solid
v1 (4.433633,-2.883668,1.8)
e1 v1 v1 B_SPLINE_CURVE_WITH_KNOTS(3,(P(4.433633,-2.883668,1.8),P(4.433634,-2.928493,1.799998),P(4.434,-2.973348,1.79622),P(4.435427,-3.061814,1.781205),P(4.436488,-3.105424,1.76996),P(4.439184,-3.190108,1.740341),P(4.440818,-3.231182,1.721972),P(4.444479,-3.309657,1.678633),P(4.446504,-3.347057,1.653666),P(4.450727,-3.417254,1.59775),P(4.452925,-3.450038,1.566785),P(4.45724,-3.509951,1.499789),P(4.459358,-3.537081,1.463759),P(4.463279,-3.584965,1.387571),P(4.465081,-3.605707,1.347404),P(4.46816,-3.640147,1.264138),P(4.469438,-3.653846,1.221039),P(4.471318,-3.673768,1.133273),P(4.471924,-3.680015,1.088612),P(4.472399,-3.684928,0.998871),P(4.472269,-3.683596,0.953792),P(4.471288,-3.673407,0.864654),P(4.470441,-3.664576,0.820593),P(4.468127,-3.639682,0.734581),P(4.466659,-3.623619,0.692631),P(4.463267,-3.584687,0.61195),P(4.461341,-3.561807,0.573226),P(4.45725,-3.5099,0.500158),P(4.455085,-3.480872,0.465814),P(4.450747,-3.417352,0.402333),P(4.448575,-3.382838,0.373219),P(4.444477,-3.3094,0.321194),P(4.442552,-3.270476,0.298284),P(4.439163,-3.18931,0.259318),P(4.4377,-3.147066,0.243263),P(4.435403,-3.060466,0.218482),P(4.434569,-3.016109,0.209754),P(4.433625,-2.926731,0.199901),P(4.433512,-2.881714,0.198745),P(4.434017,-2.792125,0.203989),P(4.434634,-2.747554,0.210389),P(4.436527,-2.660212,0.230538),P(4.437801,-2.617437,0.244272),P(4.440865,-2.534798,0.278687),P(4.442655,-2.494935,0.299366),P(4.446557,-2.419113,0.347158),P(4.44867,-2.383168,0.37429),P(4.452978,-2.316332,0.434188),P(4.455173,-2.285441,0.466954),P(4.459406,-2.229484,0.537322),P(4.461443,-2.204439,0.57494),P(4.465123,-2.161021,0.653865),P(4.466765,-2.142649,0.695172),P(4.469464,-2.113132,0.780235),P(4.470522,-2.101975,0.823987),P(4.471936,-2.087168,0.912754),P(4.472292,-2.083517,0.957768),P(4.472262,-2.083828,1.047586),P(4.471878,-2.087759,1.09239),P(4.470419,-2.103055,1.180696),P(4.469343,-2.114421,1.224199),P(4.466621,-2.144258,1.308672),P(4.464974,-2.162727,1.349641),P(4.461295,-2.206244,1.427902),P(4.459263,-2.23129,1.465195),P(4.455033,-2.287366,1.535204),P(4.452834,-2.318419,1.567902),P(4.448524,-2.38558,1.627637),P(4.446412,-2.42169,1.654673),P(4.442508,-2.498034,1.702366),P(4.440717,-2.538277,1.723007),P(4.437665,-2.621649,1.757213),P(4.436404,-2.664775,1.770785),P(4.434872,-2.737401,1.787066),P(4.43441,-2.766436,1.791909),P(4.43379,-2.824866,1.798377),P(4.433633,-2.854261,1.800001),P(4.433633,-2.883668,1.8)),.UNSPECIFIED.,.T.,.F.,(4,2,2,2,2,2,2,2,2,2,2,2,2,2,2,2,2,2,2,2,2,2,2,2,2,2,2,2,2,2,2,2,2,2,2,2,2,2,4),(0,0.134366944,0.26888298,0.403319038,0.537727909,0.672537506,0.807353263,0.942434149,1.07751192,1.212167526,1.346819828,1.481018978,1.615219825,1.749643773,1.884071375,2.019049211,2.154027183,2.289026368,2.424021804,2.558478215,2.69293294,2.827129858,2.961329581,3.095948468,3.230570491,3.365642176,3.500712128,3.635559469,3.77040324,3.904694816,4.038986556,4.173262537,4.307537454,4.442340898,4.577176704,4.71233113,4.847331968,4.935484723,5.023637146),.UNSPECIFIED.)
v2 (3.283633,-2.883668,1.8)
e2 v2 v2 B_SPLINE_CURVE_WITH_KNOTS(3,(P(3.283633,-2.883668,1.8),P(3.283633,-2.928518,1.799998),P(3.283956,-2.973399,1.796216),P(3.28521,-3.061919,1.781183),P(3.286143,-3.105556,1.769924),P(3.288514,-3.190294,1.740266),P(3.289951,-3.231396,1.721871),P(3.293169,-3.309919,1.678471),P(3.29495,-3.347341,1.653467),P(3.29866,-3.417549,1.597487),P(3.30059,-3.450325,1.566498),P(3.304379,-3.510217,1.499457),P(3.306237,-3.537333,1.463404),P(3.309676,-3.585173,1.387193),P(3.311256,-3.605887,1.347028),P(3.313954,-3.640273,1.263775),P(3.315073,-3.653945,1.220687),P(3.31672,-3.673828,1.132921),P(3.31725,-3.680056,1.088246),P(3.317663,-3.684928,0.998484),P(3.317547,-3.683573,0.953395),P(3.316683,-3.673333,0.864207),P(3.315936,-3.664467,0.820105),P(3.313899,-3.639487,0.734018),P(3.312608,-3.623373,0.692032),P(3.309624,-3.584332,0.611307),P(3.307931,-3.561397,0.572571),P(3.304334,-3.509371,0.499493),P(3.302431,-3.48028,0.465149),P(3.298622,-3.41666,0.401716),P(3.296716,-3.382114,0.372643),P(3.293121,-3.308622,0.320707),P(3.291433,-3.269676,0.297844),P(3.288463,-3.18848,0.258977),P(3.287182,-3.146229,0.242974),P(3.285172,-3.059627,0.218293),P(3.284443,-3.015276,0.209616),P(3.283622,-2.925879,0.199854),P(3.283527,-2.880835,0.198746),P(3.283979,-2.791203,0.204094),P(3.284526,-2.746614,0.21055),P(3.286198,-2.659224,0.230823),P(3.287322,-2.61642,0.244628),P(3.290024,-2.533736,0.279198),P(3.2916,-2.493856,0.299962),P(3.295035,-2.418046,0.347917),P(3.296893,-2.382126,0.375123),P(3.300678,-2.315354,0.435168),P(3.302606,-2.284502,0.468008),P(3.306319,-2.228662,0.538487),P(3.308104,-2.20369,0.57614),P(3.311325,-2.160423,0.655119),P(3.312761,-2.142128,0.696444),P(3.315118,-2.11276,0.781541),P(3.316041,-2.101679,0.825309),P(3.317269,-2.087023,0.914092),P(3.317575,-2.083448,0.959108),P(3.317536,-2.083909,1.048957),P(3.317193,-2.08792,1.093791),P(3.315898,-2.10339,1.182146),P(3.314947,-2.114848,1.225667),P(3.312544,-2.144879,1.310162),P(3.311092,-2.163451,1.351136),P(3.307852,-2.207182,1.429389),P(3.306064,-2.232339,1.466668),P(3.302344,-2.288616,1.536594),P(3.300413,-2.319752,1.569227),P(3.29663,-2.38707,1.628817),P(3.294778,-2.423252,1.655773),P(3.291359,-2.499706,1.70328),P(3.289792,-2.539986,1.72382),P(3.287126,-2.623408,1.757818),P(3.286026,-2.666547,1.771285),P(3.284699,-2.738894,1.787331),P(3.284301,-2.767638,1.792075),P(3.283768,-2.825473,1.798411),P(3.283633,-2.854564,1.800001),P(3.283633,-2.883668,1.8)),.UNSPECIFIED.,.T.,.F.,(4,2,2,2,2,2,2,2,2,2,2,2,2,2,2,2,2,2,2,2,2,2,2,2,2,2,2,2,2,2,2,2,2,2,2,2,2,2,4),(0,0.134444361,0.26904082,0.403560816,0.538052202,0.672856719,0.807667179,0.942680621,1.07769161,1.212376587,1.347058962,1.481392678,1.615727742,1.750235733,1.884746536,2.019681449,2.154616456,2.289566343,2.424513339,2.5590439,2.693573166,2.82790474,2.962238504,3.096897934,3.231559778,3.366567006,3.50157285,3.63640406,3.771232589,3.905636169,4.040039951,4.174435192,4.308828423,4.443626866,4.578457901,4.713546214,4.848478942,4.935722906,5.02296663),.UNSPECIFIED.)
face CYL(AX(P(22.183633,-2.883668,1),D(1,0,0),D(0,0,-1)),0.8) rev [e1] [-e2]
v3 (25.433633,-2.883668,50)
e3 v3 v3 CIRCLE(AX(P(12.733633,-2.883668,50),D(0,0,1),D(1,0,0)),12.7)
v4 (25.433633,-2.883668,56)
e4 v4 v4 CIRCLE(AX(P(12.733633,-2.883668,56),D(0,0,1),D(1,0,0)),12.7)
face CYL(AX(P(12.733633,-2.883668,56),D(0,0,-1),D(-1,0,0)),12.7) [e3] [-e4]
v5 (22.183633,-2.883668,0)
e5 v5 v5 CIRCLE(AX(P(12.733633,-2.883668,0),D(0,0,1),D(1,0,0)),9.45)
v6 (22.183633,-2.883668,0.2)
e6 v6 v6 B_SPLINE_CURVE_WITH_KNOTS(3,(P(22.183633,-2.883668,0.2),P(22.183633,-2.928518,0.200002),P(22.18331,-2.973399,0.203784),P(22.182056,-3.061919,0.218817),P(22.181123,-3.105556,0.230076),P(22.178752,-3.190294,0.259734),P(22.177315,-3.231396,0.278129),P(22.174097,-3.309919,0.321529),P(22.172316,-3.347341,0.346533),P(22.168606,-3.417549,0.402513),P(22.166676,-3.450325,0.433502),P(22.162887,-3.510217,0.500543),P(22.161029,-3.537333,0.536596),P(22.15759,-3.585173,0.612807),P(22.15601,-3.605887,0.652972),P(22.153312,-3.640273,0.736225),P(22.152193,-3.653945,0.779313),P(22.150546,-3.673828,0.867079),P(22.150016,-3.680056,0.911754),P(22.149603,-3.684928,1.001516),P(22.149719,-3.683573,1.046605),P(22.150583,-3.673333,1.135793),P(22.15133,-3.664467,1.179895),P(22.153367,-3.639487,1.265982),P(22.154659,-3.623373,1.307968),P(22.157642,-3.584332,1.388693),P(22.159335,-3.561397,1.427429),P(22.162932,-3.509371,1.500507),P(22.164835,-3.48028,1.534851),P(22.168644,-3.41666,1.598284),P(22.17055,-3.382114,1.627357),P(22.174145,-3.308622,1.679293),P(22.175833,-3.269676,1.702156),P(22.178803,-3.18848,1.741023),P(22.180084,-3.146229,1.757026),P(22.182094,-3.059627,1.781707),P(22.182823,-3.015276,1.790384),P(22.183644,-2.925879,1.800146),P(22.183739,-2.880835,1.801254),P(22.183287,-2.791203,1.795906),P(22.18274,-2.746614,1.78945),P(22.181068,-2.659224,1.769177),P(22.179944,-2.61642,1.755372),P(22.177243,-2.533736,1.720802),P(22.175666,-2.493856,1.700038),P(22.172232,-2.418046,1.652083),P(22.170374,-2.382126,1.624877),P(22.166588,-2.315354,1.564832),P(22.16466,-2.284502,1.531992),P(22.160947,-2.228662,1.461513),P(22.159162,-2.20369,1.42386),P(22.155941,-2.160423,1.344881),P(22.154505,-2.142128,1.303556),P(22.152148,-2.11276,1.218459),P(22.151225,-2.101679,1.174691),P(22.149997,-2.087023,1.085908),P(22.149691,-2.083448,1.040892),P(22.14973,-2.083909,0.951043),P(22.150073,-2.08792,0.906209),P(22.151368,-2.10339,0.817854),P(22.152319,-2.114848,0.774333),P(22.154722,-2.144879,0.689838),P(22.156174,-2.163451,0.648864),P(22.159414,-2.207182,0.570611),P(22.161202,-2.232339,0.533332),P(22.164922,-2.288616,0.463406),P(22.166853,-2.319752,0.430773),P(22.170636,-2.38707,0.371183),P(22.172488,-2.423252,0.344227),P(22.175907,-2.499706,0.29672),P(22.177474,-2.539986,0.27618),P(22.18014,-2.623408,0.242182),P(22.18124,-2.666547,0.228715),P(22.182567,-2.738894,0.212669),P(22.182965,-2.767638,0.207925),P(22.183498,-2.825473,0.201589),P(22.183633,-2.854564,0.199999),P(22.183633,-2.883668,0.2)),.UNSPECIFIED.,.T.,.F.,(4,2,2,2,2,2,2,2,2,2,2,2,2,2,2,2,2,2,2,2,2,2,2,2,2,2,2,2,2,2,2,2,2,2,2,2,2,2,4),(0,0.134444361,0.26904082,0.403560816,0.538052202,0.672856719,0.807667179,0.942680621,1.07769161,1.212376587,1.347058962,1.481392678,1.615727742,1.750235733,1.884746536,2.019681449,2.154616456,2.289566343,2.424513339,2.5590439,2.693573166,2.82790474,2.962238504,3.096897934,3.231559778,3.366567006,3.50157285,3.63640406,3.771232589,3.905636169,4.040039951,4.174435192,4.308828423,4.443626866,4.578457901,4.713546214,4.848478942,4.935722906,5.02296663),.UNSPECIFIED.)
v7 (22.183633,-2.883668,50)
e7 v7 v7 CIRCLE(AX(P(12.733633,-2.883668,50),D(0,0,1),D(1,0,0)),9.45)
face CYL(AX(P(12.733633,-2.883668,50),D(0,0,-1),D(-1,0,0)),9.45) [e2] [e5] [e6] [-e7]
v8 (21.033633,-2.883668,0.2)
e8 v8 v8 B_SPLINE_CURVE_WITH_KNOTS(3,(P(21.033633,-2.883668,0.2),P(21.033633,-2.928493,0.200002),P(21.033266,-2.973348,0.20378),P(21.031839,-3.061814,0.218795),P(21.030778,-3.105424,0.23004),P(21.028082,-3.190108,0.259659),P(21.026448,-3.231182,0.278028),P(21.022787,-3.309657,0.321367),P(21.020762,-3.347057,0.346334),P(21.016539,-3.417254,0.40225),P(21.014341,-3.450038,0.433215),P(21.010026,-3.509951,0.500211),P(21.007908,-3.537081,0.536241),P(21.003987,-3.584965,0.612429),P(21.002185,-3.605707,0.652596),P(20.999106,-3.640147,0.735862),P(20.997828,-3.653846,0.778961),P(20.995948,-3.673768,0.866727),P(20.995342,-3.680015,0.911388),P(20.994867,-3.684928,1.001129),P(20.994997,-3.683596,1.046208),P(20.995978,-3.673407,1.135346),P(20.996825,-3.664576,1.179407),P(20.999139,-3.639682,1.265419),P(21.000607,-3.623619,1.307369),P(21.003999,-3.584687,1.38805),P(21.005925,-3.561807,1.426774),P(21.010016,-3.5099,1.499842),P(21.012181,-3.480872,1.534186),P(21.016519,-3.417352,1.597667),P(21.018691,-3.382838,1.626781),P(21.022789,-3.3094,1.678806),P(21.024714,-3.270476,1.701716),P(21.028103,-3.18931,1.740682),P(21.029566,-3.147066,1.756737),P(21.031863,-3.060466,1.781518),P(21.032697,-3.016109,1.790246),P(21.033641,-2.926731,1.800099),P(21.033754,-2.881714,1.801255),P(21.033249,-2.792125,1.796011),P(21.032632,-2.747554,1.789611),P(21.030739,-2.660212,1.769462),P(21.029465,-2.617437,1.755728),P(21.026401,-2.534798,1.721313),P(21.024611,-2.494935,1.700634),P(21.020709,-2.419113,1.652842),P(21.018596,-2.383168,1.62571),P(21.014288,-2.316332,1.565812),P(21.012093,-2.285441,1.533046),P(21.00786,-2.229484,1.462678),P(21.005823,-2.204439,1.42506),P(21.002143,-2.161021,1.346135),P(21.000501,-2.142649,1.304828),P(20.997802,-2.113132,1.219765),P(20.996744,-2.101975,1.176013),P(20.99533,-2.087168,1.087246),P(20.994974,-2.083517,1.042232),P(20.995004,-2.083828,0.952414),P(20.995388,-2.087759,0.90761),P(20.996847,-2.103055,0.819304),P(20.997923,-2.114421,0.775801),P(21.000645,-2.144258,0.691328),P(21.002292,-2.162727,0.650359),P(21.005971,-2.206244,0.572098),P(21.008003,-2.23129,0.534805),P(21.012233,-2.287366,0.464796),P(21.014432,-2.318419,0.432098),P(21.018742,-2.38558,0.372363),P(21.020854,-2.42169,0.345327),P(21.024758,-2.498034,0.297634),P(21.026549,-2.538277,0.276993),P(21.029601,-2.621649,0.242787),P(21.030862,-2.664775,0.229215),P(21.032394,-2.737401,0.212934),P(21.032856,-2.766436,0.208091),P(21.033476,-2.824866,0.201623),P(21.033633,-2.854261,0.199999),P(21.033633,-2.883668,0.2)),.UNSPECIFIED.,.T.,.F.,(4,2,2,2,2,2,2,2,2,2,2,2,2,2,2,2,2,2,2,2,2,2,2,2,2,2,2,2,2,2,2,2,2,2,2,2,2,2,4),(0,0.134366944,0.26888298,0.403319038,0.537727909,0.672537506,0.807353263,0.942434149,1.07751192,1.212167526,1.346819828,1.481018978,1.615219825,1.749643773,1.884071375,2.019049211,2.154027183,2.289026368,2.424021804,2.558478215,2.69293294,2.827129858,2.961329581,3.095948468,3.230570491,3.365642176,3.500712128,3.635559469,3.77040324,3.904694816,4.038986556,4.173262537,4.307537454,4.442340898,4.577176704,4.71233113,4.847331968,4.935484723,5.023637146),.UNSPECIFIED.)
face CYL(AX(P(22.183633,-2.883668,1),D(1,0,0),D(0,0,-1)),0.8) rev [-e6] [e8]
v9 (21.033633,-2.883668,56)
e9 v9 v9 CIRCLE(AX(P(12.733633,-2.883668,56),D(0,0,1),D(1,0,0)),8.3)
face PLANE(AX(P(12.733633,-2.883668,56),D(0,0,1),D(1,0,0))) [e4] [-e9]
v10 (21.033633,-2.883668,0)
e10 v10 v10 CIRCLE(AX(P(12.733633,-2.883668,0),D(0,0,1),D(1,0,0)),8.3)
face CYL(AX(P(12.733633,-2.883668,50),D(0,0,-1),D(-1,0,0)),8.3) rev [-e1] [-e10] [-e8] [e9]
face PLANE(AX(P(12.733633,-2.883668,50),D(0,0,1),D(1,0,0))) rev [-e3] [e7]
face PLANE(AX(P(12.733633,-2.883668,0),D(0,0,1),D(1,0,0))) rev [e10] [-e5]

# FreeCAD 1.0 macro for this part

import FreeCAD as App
import Part
import Sketcher

doc = App.newDocument("Part")
params = doc.addObject("Spreadsheet::Sheet", "Params")
for row, (alias, value) in enumerate([
    ("sketch1_diameter", "18.9 mm"),
    ("sketch1_diameter2", "16.6 mm"),
    ("pad1_length", "50 mm"),
    ("sketch2_diameter", "25.4 mm"),
    ("sketch2_diameter2", "16.6 mm"),
    ("pad2_length", "6 mm"),
    ("sketch3_diameter", "1.6 mm"),
    ("hole_diameter", "1.6 mm"),
], start=1):
    params.set(f"A{row}", alias)
    params.set(f"B{row}", "=" + value)
    params.setAlias(f"B{row}", alias)

body = doc.addObject("PartDesign::Body", "Body")

# Sketch on XY plane
sketch1 = body.newObject("Sketcher::SketchObject", "Sketch")
sketch1.AttachmentSupport = (doc.getObject("XY_Plane"), [""])
sketch1.MapMode = "FlatFace"
sketch1.addGeometry(Part.Circle(App.Vector(12.733633, -2.883668, 0), App.Vector(0, 0, 1), 9.45), False)
sketch1.addGeometry(Part.Circle(App.Vector(12.733633, -2.883668, 0), App.Vector(0, 0, 1), 8.3), False)
sketch1.addConstraint(Sketcher.Constraint("Coincident", 1, 3, 0, 3))
sketch1.addConstraint(Sketcher.Constraint("Diameter", 0, 18.9))
sketch1.addConstraint(Sketcher.Constraint("Diameter", 1, 16.6))
sketch1.addConstraint(Sketcher.Constraint("DistanceY", 0, 3, -1, 1, 2.883668))
sketch1.addConstraint(Sketcher.Constraint("DistanceX", -1, 1, 0, 3, 12.733633))
sketch1.setExpression("Constraints[1]", "Params.sketch1_diameter")
sketch1.setExpression("Constraints[2]", "Params.sketch1_diameter2")
pad1 = body.newObject("PartDesign::Pad", "Pad")
pad1.Profile = sketch1
pad1.setExpression("Length", "Params.pad1_length")

# Sketch on XY plane
sketch2 = body.newObject("Sketcher::SketchObject", "Sketch001")
sketch2.AttachmentSupport = (doc.getObject("XY_Plane"), [""])
sketch2.MapMode = "FlatFace"
sketch2.AttachmentOffset = App.Placement(App.Vector(0, 0, 50), App.Rotation())
sketch2.addGeometry(Part.Circle(App.Vector(12.733633, -2.883668, 0), App.Vector(0, 0, 1), 12.7), False)
sketch2.addGeometry(Part.Circle(App.Vector(12.733633, -2.883668, 0), App.Vector(0, 0, 1), 8.3), False)
sketch2.addConstraint(Sketcher.Constraint("Coincident", 1, 3, 0, 3))
sketch2.addConstraint(Sketcher.Constraint("Diameter", 0, 25.4))
sketch2.addConstraint(Sketcher.Constraint("Diameter", 1, 16.6))
sketch2.addConstraint(Sketcher.Constraint("DistanceY", 0, 3, -1, 1, 2.883668))
sketch2.addConstraint(Sketcher.Constraint("DistanceX", -1, 1, 0, 3, 12.733633))
sketch2.setExpression("Constraints[1]", "Params.sketch2_diameter")
sketch2.setExpression("Constraints[2]", "Params.sketch2_diameter2")
pad2 = body.newObject("PartDesign::Pad", "Pad001")
pad2.Profile = sketch2
pad2.setExpression("Length", "Params.pad2_length")

# Sketch on YZ plane
sketch3 = body.newObject("Sketcher::SketchObject", "Sketch002")
sketch3.AttachmentSupport = (doc.getObject("YZ_Plane"), [""])
sketch3.MapMode = "FlatFace"
sketch3.AttachmentOffset = App.Placement(App.Vector(0, 0, 22.183633), App.Rotation())
sketch3.addGeometry(Part.Circle(App.Vector(-2.883668, 1, 0), App.Vector(0, 0, 1), 0.8), False)
sketch3.addConstraint(Sketcher.Constraint("Diameter", 0, 1.6))
sketch3.addConstraint(Sketcher.Constraint("DistanceY", -1, 1, 0, 3, 1.0))
sketch3.addConstraint(Sketcher.Constraint("DistanceX", 0, 3, -1, 1, 2.883668))
sketch3.setExpression("Constraints[0]", "Params.sketch3_diameter")
doc.recompute()
hole = body.newObject("PartDesign::Hole", "Hole")
hole.Profile = sketch3
hole.ThreadType = "None"
hole.setExpression("Diameter", "Params.hole_diameter")
hole.DepthType = "ThroughAll"

doc.recompute()
